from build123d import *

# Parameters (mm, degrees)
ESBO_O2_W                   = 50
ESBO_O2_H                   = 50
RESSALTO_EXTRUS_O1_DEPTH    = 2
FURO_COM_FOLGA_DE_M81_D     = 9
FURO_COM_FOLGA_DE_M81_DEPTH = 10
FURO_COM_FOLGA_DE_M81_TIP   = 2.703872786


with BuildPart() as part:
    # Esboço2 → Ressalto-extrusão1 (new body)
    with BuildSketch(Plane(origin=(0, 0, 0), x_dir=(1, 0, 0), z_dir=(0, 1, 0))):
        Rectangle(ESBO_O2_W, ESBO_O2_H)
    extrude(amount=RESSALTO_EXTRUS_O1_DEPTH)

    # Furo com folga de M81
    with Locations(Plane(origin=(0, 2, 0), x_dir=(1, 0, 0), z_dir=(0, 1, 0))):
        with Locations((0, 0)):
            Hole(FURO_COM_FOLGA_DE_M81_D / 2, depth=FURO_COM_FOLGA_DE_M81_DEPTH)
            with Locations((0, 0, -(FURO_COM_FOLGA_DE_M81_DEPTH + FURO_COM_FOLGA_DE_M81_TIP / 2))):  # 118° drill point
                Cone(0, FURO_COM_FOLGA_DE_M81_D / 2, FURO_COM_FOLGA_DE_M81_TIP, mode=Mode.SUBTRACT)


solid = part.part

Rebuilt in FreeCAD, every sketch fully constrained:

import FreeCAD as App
import Part
import Sketcher
Q = App.Units.Quantity

doc = App.newDocument("Part")
body = doc.addObject("PartDesign::Body", "Body")

# Sketch on XZ plane
sketch1 = doc.addObject("Sketcher::SketchObject", "Sketch")
body.addObject(sketch1)
sketch1.AttachmentSupport = (doc.XZ_Plane, [""])
sketch1.MapMode = "FlatFace"
sketch1.addGeometry(Part.LineSegment(App.Vector(-25, -25, 0), App.Vector(-25, 25, 0)), False)
sketch1.addGeometry(Part.LineSegment(App.Vector(-25, 25, 0), App.Vector(25, 25, 0)), False)
sketch1.addGeometry(Part.LineSegment(App.Vector(25, 25, 0), App.Vector(25, -25, 0)), False)
sketch1.addGeometry(Part.LineSegment(App.Vector(25, -25, 0), App.Vector(-25, -25, 0)), False)
sketch1.addConstraint(Sketcher.Constraint("Coincident", 0, 2, 1, 1))
sketch1.addConstraint(Sketcher.Constraint("Coincident", 1, 2, 2, 1))
sketch1.addConstraint(Sketcher.Constraint("Coincident", 2, 2, 3, 1))
sketch1.addConstraint(Sketcher.Constraint("Coincident", 3, 2, 0, 1))
sketch1.addConstraint(Sketcher.Constraint("Vertical", 0))
sketch1.addConstraint(Sketcher.Constraint("Horizontal", 1))
sketch1.addConstraint(Sketcher.Constraint("Vertical", 2))
sketch1.addConstraint(Sketcher.Constraint("Horizontal", 3))
sketch1.addConstraint(Sketcher.Constraint("Symmetric", 0, 2, 2, 2, -1, 1))
sketch1.addConstraint(Sketcher.Constraint("Equal", 3, 0))
sketch1.addConstraint(Sketcher.Constraint("DistanceX", 1, 1, 1, 2, Q("50 mm")))
pad1 = doc.addObject("PartDesign::Pad", "Pad")
body.addObject(pad1)
pad1.Profile = sketch1
pad1.Length = 2
pad1.Reversed = True

# Sketch on XZ plane
sketch2 = doc.addObject("Sketcher::SketchObject", "Sketch001")
body.addObject(sketch2)
sketch2.AttachmentSupport = (doc.XZ_Plane, [""])
sketch2.MapMode = "FlatFace"
sketch2.AttachmentOffset = App.Placement(App.Vector(0, 0, -2), App.Rotation())
sketch2.addGeometry(Part.Circle(App.Vector(0, 0, 0), App.Vector(0, 0, 1), 4.5), False)
sketch2.addConstraint(Sketcher.Constraint("Coincident", 0, 3, -1, 1))
sketch2.addConstraint(Sketcher.Constraint("Diameter", 0, Q("9 mm")))
doc.recompute()
hole = doc.addObject("PartDesign::Hole", "Hole")
body.addObject(hole)
hole.Profile = sketch2
hole.ThreadType = "None"
hole.Diameter = 9
hole.DepthType = "Dimension"
hole.Depth = 10
hole.DrillPoint = "Angled"
hole.DrillPointAngle = 118
hole.Reversed = True

doc.recompute()
